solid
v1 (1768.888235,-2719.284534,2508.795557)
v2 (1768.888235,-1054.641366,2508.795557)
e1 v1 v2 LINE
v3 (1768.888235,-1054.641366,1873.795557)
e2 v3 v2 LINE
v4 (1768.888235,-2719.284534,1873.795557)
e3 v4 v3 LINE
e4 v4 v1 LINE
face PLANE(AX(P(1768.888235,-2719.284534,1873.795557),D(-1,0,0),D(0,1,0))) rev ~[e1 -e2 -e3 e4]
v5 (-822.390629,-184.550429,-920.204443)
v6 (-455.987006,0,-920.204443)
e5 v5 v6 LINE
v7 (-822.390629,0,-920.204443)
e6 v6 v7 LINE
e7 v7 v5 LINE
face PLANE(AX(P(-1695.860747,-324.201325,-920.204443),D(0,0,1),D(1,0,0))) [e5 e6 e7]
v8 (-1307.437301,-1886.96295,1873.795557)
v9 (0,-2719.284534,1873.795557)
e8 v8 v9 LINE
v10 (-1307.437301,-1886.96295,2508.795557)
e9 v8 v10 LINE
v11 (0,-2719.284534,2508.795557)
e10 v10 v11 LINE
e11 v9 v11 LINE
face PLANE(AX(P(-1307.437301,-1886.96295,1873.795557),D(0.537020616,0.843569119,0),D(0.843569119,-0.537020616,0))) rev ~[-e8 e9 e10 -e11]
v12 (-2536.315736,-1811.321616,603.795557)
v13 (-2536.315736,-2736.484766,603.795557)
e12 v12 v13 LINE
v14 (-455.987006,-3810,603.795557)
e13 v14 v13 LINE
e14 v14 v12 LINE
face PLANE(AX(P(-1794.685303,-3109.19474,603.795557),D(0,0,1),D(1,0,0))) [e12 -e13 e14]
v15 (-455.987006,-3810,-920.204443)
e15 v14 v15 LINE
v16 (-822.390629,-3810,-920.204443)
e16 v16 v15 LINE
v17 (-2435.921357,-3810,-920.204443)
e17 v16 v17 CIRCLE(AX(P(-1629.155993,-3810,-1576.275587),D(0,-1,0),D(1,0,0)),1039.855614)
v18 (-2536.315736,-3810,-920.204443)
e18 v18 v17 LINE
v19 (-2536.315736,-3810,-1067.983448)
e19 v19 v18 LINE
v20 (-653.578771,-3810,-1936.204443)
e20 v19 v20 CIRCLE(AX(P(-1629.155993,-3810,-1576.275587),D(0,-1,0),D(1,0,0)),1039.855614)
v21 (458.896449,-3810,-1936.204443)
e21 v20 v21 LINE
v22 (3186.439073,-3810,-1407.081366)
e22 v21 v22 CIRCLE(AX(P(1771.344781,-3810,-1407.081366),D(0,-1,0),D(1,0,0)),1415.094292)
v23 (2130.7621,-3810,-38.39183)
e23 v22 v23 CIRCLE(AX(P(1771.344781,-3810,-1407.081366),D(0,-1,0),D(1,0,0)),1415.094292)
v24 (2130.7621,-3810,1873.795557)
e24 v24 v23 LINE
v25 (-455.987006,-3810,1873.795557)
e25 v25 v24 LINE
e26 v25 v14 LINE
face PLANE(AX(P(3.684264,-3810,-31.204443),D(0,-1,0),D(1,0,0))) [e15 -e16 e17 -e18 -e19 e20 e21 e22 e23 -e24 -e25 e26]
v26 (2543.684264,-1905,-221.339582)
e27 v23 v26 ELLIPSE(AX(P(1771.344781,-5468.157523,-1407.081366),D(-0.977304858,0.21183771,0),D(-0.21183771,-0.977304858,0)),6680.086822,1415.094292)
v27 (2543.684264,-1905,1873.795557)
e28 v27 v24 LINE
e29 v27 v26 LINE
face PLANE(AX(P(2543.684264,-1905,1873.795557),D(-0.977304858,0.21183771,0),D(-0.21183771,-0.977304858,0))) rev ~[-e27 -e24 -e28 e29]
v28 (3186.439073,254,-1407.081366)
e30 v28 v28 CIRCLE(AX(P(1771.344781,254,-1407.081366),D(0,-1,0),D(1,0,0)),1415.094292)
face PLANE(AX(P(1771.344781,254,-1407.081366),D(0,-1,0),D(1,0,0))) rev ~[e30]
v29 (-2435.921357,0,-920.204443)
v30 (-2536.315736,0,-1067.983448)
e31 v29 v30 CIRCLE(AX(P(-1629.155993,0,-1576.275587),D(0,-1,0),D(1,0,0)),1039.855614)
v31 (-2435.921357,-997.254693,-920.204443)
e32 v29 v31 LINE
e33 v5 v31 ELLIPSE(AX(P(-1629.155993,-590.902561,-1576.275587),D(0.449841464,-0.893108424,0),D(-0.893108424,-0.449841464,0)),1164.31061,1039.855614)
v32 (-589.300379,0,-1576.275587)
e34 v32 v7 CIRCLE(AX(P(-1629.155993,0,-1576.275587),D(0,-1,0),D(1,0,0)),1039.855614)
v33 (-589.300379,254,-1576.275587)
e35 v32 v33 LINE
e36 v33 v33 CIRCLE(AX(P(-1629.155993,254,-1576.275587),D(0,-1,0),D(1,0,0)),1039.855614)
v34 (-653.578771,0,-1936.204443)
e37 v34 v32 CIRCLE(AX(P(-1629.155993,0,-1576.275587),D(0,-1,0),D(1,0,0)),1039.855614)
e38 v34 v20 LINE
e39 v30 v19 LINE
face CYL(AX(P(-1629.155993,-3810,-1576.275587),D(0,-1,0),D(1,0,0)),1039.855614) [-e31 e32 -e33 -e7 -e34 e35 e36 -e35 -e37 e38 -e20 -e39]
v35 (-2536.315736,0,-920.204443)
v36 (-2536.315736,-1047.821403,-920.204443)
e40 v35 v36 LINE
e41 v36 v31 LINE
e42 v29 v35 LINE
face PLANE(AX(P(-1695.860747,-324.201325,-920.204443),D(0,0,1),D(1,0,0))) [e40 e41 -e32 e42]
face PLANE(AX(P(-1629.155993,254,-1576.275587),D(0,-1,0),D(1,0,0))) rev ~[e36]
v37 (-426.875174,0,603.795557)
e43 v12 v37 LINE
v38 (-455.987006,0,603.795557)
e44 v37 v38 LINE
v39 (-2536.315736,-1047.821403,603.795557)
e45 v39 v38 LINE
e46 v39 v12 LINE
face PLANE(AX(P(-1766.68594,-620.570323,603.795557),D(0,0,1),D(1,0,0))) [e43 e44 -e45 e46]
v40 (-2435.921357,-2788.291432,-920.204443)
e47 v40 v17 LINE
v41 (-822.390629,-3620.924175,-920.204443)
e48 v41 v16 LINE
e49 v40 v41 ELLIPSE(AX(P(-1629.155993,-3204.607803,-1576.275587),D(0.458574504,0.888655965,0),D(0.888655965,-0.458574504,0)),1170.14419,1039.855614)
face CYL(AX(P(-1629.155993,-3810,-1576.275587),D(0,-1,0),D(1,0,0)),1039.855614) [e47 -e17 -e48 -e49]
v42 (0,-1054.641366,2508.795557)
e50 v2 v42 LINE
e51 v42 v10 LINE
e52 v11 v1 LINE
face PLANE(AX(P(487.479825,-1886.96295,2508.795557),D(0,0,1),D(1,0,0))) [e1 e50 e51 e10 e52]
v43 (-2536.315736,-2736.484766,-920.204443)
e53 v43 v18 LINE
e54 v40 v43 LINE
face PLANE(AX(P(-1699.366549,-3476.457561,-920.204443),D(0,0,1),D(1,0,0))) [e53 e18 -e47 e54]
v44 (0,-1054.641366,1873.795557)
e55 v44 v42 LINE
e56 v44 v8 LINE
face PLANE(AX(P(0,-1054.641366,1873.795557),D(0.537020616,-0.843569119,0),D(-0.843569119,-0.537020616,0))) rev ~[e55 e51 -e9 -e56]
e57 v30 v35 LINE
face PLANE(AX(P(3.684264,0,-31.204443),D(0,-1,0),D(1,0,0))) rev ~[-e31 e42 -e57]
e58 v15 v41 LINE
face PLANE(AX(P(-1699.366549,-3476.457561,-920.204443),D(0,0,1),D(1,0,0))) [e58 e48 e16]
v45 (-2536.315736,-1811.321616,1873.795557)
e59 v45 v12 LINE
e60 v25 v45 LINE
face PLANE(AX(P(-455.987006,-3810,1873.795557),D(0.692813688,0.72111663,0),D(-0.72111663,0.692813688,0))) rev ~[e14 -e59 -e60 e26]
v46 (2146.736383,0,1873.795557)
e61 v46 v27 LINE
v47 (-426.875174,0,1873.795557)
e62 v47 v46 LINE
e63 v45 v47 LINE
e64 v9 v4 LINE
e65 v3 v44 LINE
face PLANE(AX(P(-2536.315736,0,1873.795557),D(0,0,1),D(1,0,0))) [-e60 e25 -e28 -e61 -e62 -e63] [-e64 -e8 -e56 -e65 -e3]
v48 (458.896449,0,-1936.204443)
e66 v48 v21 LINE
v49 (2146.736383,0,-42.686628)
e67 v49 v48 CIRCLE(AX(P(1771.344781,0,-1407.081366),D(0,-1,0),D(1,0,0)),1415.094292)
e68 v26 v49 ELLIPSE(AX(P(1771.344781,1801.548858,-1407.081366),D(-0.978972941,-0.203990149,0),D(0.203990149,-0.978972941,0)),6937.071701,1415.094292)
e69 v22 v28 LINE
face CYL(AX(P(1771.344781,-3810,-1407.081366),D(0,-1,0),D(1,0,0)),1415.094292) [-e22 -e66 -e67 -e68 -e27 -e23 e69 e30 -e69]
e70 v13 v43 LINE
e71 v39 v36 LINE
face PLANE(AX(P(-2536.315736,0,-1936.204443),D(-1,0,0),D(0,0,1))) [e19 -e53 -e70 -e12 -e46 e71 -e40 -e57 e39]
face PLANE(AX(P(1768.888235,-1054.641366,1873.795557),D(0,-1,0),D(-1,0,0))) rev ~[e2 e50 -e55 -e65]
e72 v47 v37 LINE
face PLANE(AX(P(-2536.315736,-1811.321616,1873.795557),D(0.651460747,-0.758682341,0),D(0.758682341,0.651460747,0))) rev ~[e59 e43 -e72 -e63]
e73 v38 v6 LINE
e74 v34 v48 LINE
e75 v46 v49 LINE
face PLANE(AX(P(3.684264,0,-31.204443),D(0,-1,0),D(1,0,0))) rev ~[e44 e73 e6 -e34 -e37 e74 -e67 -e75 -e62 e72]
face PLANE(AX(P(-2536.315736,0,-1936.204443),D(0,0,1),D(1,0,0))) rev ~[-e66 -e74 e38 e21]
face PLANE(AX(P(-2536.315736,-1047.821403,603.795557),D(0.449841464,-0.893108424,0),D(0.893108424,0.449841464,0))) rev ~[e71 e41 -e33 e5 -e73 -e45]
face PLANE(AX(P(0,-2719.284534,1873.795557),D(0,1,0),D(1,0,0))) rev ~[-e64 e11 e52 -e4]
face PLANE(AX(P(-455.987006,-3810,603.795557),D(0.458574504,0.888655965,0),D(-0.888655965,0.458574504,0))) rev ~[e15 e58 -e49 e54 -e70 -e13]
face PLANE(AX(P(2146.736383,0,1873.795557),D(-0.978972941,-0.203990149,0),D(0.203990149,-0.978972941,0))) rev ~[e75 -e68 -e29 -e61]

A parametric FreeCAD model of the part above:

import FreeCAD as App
import Part
import Sketcher
Q = App.Units.Quantity

doc = App.newDocument("Part")
params = doc.addObject("Spreadsheet::Sheet", "Params")
for row, (alias, value) in enumerate([
    ("sketch1_width", "200 in"),
    ("sketch1_height", "150 in"),
    ("pad1_length", "150 in"),
    ("pocket1_length", "50 in"),
    ("sketch3_height", "75 in"),
    ("pocket2_length", "200 in"),
    ("pocket3_length", "60 in"),
    ("pad2_length", "25 in"),
    ("pad3_length", "160 in"),
], start=1):
    params.set(f"A{row}", alias)
    params.set(f"B{row}", "=" + value)
    params.setAlias(f"B{row}", alias)

body = doc.addObject("PartDesign::Body", "Body")

sketch1 = body.newObject("Sketcher::SketchObject", "Sketch")
sketch1.AttachmentSupport = (doc.getObject("XZ_Plane"), [""])
sketch1.MapMode = "FlatFace"
sketch1.addGeometry([
    Part.LineSegment(App.Vector(-2536, 1874, 0), App.Vector(-2536, -1936, 0)),
    Part.LineSegment(App.Vector(-2536, -1936, 0), App.Vector(2544, -1936, 0)),
    Part.LineSegment(App.Vector(2544, -1936, 0), App.Vector(2544, 1874, 0)),
    Part.LineSegment(App.Vector(2544, 1874, 0), App.Vector(-2536, 1874, 0)),
], False)
sketch1.addConstraint([
    Sketcher.Constraint("Coincident", 0, 2, 1, 1),
    Sketcher.Constraint("Coincident", 1, 2, 2, 1),
    Sketcher.Constraint("Coincident", 2, 2, 3, 1),
    Sketcher.Constraint("Coincident", 3, 2, 0, 1),
    Sketcher.Constraint("Vertical", 0),
    Sketcher.Constraint("Horizontal", 1),
    Sketcher.Constraint("Vertical", 2),
    Sketcher.Constraint("Horizontal", 3),
    Sketcher.Constraint("DistanceX", 1, 1, 1, 2, Q("200 in")),
    Sketcher.Constraint("DistanceY", 0, 2, 0, 1, Q("150 in")),
    Sketcher.Constraint("DistanceX", 0, 2, -1, 1, 2536.315736),
    Sketcher.Constraint("DistanceY", 0, 2, -1, 1, 1936.204443),
])
sketch1.setExpression("Constraints[8]", "Params.sketch1_width")
sketch1.setExpression("Constraints[9]", "Params.sketch1_height")
pad1 = body.newObject("PartDesign::Pad", "Pad")
pad1.Profile = sketch1
pad1.setExpression("Length", "Params.pad1_length")

sketch2 = body.newObject("Sketcher::SketchObject", "Sketch001")
sketch2.AttachmentSupport = (doc.getObject("XY_Plane"), [""])
sketch2.MapMode = "FlatFace"
sketch2.AttachmentOffset = App.Placement(App.Vector(0, 0, 1873.795557), App.Rotation())
sketch2.addGeometry([
    Part.LineSegment(App.Vector(-2536, 0, 0), App.Vector(-2536, -1811, 0)),
    Part.LineSegment(App.Vector(-2536, -1811, 0), App.Vector(-427, 0, 0)),
    Part.LineSegment(App.Vector(-427, 0, 0), App.Vector(-2536, 0, 0)),
    Part.LineSegment(App.Vector(-456, -3810, 0), App.Vector(-2536, -1811, 0)),
    Part.LineSegment(App.Vector(-2536, -1811, 0), App.Vector(-2536, -3810, 0)),
    Part.LineSegment(App.Vector(-2536, -3810, 0), App.Vector(-456, -3810, 0)),
], False)
sketch2.addConstraint([
    Sketcher.Constraint("Coincident", 0, 2, 1, 1),
    Sketcher.Constraint("Coincident", 1, 2, 2, 1),
    Sketcher.Constraint("Coincident", 2, 2, 0, 1),
    Sketcher.Constraint("Coincident", 3, 2, 4, 1),
    Sketcher.Constraint("Coincident", 4, 2, 5, 1),
    Sketcher.Constraint("Coincident", 5, 2, 3, 1),
    Sketcher.Constraint("Vertical", 0),
    Sketcher.Constraint("Horizontal", 2),
    Sketcher.Constraint("Vertical", 4),
    Sketcher.Constraint("Horizontal", 5),
    Sketcher.Constraint("Coincident", 3, 2, 0, 2),
    Sketcher.Constraint("PointOnObject", 1, 2, -1),
    Sketcher.Constraint("DistanceY", 4, 2, -1, 1, Q("150 in")),
    Sketcher.Constraint("DistanceX", 2, 2, 2, 1, 2109.440562),
    Sketcher.Constraint("DistanceX", 5, 1, 5, 2, 2080.32873),
    Sketcher.Constraint("DistanceY", 0, 2, 0, 1, 1811.321616),
    Sketcher.Constraint("DistanceX", 0, 2, -1, 1, 2536.315736),
])
pocket1 = body.newObject("PartDesign::Pocket", "Pocket")
pocket1.Profile = sketch2
pocket1.setExpression("Length", "Params.pocket1_length")

sketch3 = body.newObject("Sketcher::SketchObject", "Sketch002")
sketch3.AttachmentSupport = (doc.getObject("XY_Plane"), [""])
sketch3.MapMode = "FlatFace"
sketch3.AttachmentOffset = App.Placement(App.Vector(0, 0, 1873.795557), App.Rotation())
sketch3.addGeometry([
    Part.LineSegment(App.Vector(2147, 0, 0), App.Vector(2544, -1905, 0)),
    Part.LineSegment(App.Vector(2544, -1905, 0), App.Vector(2544, 0, 0)),
    Part.LineSegment(App.Vector(2544, 0, 0), App.Vector(2147, 0, 0)),
    Part.LineSegment(App.Vector(2544, -1905, 0), App.Vector(2131, -3810, 0)),
    Part.LineSegment(App.Vector(2131, -3810, 0), App.Vector(2544, -3810, 0)),
    Part.LineSegment(App.Vector(2544, -3810, 0), App.Vector(2544, -1905, 0)),
], False)
sketch3.addConstraint([
    Sketcher.Constraint("Coincident", 0, 2, 1, 1),
    Sketcher.Constraint("Coincident", 1, 2, 2, 1),
    Sketcher.Constraint("Coincident", 2, 2, 0, 1),
    Sketcher.Constraint("Coincident", 3, 2, 4, 1),
    Sketcher.Constraint("Coincident", 4, 2, 5, 1),
    Sketcher.Constraint("Coincident", 5, 2, 3, 1),
    Sketcher.Constraint("Vertical", 1),
    Sketcher.Constraint("Horizontal", 2),
    Sketcher.Constraint("Horizontal", 4),
    Sketcher.Constraint("Vertical", 5),
    Sketcher.Constraint("Coincident", 5, 2, 0, 2),
    Sketcher.Constraint("PointOnObject", 1, 2, -1),
    Sketcher.Constraint("Equal", 1, 5),
    Sketcher.Constraint("DistanceY", 1, 1, 1, 2, Q("75 in")),
    Sketcher.Constraint("DistanceX", 2, 2, 2, 1, 396.947881),
    Sketcher.Constraint("DistanceX", -1, 1, 3, 2, 2130.7621),
    Sketcher.Constraint("Distance", 3, 1949.238239),
])
sketch3.setExpression("Constraints[13]", "Params.sketch3_height")
pocket2 = body.newObject("PartDesign::Pocket", "Pocket001")
pocket2.Profile = sketch3
pocket2.setExpression("Length", "Params.pocket2_length")

sketch4 = body.newObject("Sketcher::SketchObject", "Sketch003")
sketch4.AttachmentSupport = (doc.getObject("XY_Plane"), [""])
sketch4.MapMode = "FlatFace"
sketch4.AttachmentOffset = App.Placement(App.Vector(0, 0, 603.795557), App.Rotation())
sketch4.addGeometry([
    Part.LineSegment(App.Vector(-456, -3810, 0), App.Vector(-2536, -2736, 0)),
    Part.LineSegment(App.Vector(-2536, -2736, 0), App.Vector(-2536, -3810, 0)),
    Part.LineSegment(App.Vector(-2536, -3810, 0), App.Vector(-456, -3810, 0)),
    Part.LineSegment(App.Vector(-2536, 0, 0), App.Vector(-2536, -1048, 0)),
    Part.LineSegment(App.Vector(-2536, -1048, 0), App.Vector(-456, 0, 0)),
    Part.LineSegment(App.Vector(-456, 0, 0), App.Vector(-2536, 0, 0)),
], False)
sketch4.addConstraint([
    Sketcher.Constraint("Coincident", 0, 2, 1, 1),
    Sketcher.Constraint("Coincident", 1, 2, 2, 1),
    Sketcher.Constraint("Coincident", 2, 2, 0, 1),
    Sketcher.Constraint("Coincident", 3, 2, 4, 1),
    Sketcher.Constraint("Coincident", 4, 2, 5, 1),
    Sketcher.Constraint("Coincident", 5, 2, 3, 1),
    Sketcher.Constraint("Vertical", 1),
    Sketcher.Constraint("Horizontal", 2),
    Sketcher.Constraint("Vertical", 3),
    Sketcher.Constraint("Horizontal", 5),
    Sketcher.Constraint("PointOnObject", 4, 2, -1),
    Sketcher.Constraint("Vertical", 1, 2, 3, 2),
    Sketcher.Constraint("Vertical", 2, 2, 4, 2),
    Sketcher.Constraint("DistanceY", 1, 2, -1, 1, Q("150 in")),
    Sketcher.Constraint("DistanceX", 2, 1, 2, 2, 2080.32873),
    Sketcher.Constraint("Distance", 0, 2340.983251),
    Sketcher.Constraint("DistanceY", 3, 2, 3, 1, 1047.821403),
    Sketcher.Constraint("DistanceX", 0, 2, -1, 1, 2536.315736),
])
pocket3 = body.newObject("PartDesign::Pocket", "Pocket002")
pocket3.Profile = sketch4
pocket3.setExpression("Length", "Params.pocket3_length")

sketch5 = body.newObject("Sketcher::SketchObject", "Sketch004")
sketch5.AttachmentSupport = (doc.getObject("XY_Plane"), [""])
sketch5.MapMode = "FlatFace"
sketch5.AttachmentOffset = App.Placement(App.Vector(0, 0, 1873.795557), App.Rotation())
sketch5.addGeometry([
    Part.LineSegment(App.Vector(-1307, -1887, 0), App.Vector(0, -2719, 0)),
    Part.LineSegment(App.Vector(0, -2719, 0), App.Vector(1769, -2719, 0)),
    Part.LineSegment(App.Vector(1769, -2719, 0), App.Vector(1769, -1055, 0)),
    Part.LineSegment(App.Vector(1769, -1055, 0), App.Vector(0, -1055, 0)),
    Part.LineSegment(App.Vector(0, -1055, 0), App.Vector(-1307, -1887, 0)),
], False)
sketch5.addConstraint([
    Sketcher.Constraint("Coincident", 0, 2, 1, 1),
    Sketcher.Constraint("Coincident", 1, 2, 2, 1),
    Sketcher.Constraint("Coincident", 2, 2, 3, 1),
    Sketcher.Constraint("Coincident", 3, 2, 4, 1),
    Sketcher.Constraint("Coincident", 4, 2, 0, 1),
    Sketcher.Constraint("Horizontal", 1),
    Sketcher.Constraint("Vertical", 2),
    Sketcher.Constraint("Horizontal", 3),
    Sketcher.Constraint("PointOnObject", 0, 2, -2),
    Sketcher.Constraint("PointOnObject", 3, 2, -2),
    Sketcher.Constraint("Equal", 0, 4),
    Sketcher.Constraint("DistanceX", 4, 2, -1, 1, 1307.437301),
    Sketcher.Constraint("Distance", 0, 1549.887581),
    Sketcher.Constraint("DistanceX", 1, 1, 1, 2, 1768.888235),
    Sketcher.Constraint("DistanceY", 4, 2, -1, 1, 1886.96295),
])
pad2 = body.newObject("PartDesign::Pad", "Pad001")
pad2.Profile = sketch5
pad2.setExpression("Length", "Params.pad2_length")

sketch6 = body.newObject("Sketcher::SketchObject", "Sketch005")
sketch6.AttachmentSupport = (doc.getObject("XZ_Plane"), [""])
sketch6.MapMode = "FlatFace"
sketch6.AttachmentOffset = App.Placement(App.Vector(0, 0, 150 * 25.4), App.Rotation())
sketch6.addGeometry([
    Part.Circle(App.Vector(-1629, -1576, 0), App.Vector(0, 0, 1), 1040),
    Part.Circle(App.Vector(1771, -1407, 0), App.Vector(0, 0, 1), 1415),
], False)
sketch6.addConstraint([
    Sketcher.Constraint("Diameter", 0, 2079.711228),
    Sketcher.Constraint("Diameter", 1, 2830.188584),
    Sketcher.Constraint("DistanceX", -1, 1, 1, 3, 1771.344781),
    Sketcher.Constraint("DistanceY", 0, 3, 1, 3, 169.194221),
    Sketcher.Constraint("DistanceX", 0, 3, -1, 1, 1629.155993),
    Sketcher.Constraint("DistanceY", 0, 3, -1, 1, 1576.275587),
])
pad3 = body.newObject("PartDesign::Pad", "Pad002")
pad3.Profile = sketch6
pad3.setExpression("Length", "Params.pad3_length")
pad3.Reversed = True

doc.recompute()
